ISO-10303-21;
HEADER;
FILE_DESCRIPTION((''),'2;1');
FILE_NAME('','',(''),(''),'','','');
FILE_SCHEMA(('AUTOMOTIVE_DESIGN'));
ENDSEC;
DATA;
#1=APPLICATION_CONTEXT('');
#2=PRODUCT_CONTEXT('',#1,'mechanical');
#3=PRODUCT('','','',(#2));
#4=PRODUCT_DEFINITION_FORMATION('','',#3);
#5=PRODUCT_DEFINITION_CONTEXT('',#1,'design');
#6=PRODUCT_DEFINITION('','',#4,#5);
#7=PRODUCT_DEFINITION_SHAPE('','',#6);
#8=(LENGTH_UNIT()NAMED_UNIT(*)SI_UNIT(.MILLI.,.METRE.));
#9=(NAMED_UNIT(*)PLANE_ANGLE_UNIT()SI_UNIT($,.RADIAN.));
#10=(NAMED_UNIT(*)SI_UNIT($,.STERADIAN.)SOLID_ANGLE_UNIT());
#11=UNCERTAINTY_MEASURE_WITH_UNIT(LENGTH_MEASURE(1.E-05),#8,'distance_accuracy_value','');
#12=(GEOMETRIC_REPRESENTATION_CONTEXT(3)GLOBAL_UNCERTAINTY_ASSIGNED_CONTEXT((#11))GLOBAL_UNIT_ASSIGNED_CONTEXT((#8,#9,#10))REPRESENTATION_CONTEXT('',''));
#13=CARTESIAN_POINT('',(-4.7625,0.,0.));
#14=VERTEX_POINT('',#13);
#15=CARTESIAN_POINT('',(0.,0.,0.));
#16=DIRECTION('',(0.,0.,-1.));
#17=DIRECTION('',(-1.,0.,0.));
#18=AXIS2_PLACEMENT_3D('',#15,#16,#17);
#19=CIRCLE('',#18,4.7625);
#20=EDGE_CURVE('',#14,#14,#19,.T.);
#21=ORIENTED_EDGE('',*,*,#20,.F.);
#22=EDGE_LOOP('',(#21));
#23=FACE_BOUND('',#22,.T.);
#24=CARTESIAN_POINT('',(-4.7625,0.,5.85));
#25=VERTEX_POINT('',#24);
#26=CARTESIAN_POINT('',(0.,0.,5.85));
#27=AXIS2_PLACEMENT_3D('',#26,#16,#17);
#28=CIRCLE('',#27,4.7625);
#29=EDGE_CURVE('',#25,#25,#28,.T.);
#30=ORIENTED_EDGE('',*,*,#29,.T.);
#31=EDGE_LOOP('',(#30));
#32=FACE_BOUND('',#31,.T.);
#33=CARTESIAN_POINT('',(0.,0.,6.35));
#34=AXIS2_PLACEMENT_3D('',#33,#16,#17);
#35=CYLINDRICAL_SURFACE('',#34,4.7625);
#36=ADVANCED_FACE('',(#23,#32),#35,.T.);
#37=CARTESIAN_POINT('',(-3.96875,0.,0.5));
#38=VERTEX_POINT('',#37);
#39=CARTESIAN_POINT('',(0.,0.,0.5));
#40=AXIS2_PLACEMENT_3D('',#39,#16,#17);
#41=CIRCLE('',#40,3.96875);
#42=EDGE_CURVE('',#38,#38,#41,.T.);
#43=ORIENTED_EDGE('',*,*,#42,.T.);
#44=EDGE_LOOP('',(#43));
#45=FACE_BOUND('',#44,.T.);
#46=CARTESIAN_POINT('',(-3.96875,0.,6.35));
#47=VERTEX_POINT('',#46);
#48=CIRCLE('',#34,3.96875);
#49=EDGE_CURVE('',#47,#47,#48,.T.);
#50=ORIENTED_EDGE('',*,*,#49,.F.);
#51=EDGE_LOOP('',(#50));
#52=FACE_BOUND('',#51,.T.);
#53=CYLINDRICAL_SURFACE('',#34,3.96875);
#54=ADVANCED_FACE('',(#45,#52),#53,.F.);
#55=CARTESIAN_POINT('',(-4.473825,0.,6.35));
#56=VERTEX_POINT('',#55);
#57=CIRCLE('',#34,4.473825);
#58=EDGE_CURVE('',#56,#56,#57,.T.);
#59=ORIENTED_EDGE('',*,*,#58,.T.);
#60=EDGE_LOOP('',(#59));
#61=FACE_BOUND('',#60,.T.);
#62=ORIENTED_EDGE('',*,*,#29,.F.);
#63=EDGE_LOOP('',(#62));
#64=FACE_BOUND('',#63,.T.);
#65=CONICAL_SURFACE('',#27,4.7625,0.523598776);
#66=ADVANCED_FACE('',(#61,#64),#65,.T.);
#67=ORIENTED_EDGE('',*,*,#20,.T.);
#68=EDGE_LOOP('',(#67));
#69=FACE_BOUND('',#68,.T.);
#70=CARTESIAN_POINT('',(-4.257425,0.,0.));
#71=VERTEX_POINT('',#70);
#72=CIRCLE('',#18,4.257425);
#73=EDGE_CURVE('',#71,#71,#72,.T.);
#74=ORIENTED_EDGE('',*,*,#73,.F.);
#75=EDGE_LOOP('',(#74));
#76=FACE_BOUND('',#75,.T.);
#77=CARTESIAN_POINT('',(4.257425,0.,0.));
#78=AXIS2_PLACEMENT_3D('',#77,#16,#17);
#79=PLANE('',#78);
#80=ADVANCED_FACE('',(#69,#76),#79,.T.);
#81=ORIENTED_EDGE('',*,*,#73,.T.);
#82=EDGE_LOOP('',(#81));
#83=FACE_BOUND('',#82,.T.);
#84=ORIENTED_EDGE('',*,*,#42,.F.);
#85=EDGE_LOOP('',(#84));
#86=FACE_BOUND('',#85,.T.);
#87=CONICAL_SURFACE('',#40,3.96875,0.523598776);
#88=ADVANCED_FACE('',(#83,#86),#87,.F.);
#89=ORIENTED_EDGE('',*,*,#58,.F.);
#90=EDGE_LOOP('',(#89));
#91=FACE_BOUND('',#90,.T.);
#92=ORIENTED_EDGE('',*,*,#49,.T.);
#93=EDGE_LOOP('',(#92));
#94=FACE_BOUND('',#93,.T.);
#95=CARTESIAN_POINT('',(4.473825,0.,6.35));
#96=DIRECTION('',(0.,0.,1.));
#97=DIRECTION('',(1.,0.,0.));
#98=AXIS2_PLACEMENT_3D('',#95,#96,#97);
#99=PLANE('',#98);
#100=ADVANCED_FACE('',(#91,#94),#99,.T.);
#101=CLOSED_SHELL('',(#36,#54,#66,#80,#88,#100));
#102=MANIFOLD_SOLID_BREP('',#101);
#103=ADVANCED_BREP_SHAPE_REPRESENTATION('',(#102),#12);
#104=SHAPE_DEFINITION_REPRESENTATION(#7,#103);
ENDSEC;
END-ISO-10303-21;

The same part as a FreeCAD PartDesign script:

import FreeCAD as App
import Part
import Sketcher
from FreeCAD import Vector
Q = App.Units.Quantity

doc = App.newDocument("Part")
body = doc.addObject("PartDesign::Body", "Body")

# Sketch on XZ plane
sketch1 = doc.addObject("Sketcher::SketchObject", "Sketch")
body.addObject(sketch1)
sketch1.AttachmentSupport = (doc.XZ_Plane, [""])
sketch1.MapMode = "FlatFace"
sketch1.addGeometry(Part.LineSegment(Vector(4.473825, 6.35, 0), Vector(3.96875, 6.35, 0)), False)
sketch1.addGeometry(Part.LineSegment(Vector(3.96875, 6.35, 0), Vector(3.96875, 0.5, 0)), False)
sketch1.addGeometry(Part.LineSegment(Vector(3.96875, 0.5, 0), Vector(4.257425, 0, 0)), False)
sketch1.addGeometry(Part.LineSegment(Vector(4.257425, 0, 0), Vector(4.7625, 0, 0)), False)
sketch1.addGeometry(Part.LineSegment(Vector(4.7625, 0, 0), Vector(4.7625, 5.85, 0)), False)
sketch1.addGeometry(Part.LineSegment(Vector(4.7625, 5.85, 0), Vector(4.473825, 6.35, 0)), False)
sketch1.addConstraint(Sketcher.Constraint("Coincident", 0, 2, 1, 1))
sketch1.addConstraint(Sketcher.Constraint("Coincident", 1, 2, 2, 1))
sketch1.addConstraint(Sketcher.Constraint("Coincident", 2, 2, 3, 1))
sketch1.addConstraint(Sketcher.Constraint("Coincident", 3, 2, 4, 1))
sketch1.addConstraint(Sketcher.Constraint("Coincident", 4, 2, 5, 1))
sketch1.addConstraint(Sketcher.Constraint("Coincident", 5, 2, 0, 1))
sketch1.addConstraint(Sketcher.Constraint("Horizontal", 0))
sketch1.addConstraint(Sketcher.Constraint("Vertical", 1))
sketch1.addConstraint(Sketcher.Constraint("Horizontal", 3))
sketch1.addConstraint(Sketcher.Constraint("Vertical", 4))
sketch1.addConstraint(Sketcher.Constraint("PointOnObject", 2, 2, -1))
sketch1.addConstraint(Sketcher.Constraint("Parallel", 2, 5))
sketch1.addConstraint(Sketcher.Constraint("Equal", 0, 3))
sketch1.addConstraint(Sketcher.Constraint("Angle", 2, Q("-60 deg")))
sketch1.addConstraint(Sketcher.Constraint("DistanceY", 1, 2, 1, 1, 5.85))
sketch1.addConstraint(Sketcher.Constraint("DistanceY", -1, 1, 1, 2, 0.5))
sketch1.addConstraint(Sketcher.Constraint("DistanceX", -1, 1, 3, 2, 4.7625))
sketch1.addConstraint(Sketcher.Constraint("DistanceX", 2, 2, 5, 2, 0.2164))
revolution = doc.addObject("PartDesign::Revolution", "Revolution")
body.addObject(revolution)
revolution.Profile = sketch1
revolution.ReferenceAxis = (sketch1, ["V_Axis"])
revolution.Angle = 360

doc.recompute()
